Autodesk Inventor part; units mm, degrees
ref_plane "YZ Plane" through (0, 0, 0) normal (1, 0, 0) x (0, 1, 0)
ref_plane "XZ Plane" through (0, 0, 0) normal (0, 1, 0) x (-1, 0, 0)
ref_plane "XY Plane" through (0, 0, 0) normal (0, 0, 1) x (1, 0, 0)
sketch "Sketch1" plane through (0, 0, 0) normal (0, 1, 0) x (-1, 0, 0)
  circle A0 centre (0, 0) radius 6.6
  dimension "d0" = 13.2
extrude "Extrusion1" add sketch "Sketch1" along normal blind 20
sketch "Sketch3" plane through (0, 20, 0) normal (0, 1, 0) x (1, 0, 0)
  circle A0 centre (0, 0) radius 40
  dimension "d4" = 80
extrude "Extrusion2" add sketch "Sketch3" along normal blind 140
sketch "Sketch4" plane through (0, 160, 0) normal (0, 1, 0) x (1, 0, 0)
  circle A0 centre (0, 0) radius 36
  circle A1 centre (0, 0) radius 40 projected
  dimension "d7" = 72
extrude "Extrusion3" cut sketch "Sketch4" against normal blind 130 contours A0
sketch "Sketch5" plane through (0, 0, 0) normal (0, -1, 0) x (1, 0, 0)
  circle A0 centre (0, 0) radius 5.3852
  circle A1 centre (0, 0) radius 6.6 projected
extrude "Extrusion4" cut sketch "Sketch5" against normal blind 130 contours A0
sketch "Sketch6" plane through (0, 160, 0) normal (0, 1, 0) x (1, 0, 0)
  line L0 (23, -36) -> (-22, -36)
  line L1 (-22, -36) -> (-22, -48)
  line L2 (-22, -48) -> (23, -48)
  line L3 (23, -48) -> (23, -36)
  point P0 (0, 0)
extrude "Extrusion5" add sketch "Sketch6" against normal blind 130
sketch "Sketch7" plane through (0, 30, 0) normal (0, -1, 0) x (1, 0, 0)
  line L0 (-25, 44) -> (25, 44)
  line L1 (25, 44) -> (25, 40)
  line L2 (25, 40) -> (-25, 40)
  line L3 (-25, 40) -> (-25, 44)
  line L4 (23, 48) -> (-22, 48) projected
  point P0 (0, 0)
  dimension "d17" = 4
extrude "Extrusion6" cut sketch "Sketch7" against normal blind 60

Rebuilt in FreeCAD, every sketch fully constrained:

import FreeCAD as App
import Part
import Sketcher
Q = App.Units.Quantity


def add_polygon(sketch, points):
    """Adds a closed chain of lines whose ends are joined by coincident constraints."""
    first, n = sketch.GeometryCount, len(points)
    for a, b in zip(points, points[1:] + points[:1]):
        sketch.addGeometry(Part.LineSegment(App.Vector(*a, 0), App.Vector(*b, 0)), False)
    for i in range(n):
        sketch.addConstraint(Sketcher.Constraint("Coincident", first + i, 2, first + (i + 1) % n, 1))

doc = App.newDocument("Part")
body = doc.addObject("PartDesign::Body", "Body")

# Sketch on XZ plane
sketch1 = body.newObject("Sketcher::SketchObject", "Sketch")
sketch1.AttachmentSupport = (doc.getObject("XZ_Plane"), [""])
sketch1.MapMode = "FlatFace"
sketch1.addGeometry(Part.Circle(App.Vector(0, 0, 0), App.Vector(0, 0, 1), 7), False)
sketch1.addConstraint(Sketcher.Constraint("Coincident", 0, 3, -1, 1))
sketch1.addConstraint(Sketcher.Constraint("Diameter", 0, Q("13.2 mm")))
pad1 = body.newObject("PartDesign::Pad", "Pad")
pad1.Profile = sketch1
pad1.Length = 20
pad1.Reversed = True

# Sketch on XZ plane
sketch2 = body.newObject("Sketcher::SketchObject", "Sketch001")
sketch2.AttachmentSupport = (doc.getObject("XZ_Plane"), [""])
sketch2.MapMode = "FlatFace"
sketch2.AttachmentOffset = App.Placement(App.Vector(0, 0, -20), App.Rotation())
sketch2.addGeometry(Part.Circle(App.Vector(0, 0, 0), App.Vector(0, 0, 1), 40), False)
sketch2.addConstraint(Sketcher.Constraint("Coincident", 0, 3, -1, 1))
sketch2.addConstraint(Sketcher.Constraint("Diameter", 0, Q("80 mm")))
pad2 = body.newObject("PartDesign::Pad", "Pad001")
pad2.Profile = sketch2
pad2.Length = 140
pad2.Reversed = True

# Sketch on XZ plane
sketch3 = body.newObject("Sketcher::SketchObject", "Sketch002")
sketch3.AttachmentSupport = (doc.getObject("XZ_Plane"), [""])
sketch3.MapMode = "FlatFace"
sketch3.AttachmentOffset = App.Placement(App.Vector(0, 0, -160), App.Rotation())
sketch3.addGeometry(Part.Circle(App.Vector(0, 0, 0), App.Vector(0, 0, 1), 36), False)
sketch3.addConstraint(Sketcher.Constraint("Coincident", 0, 3, -1, 1))
sketch3.addConstraint(Sketcher.Constraint("Diameter", 0, Q("72 mm")))
pocket1 = body.newObject("PartDesign::Pocket", "Pocket")
pocket1.Profile = sketch3
pocket1.Length = 130
pocket1.Reversed = True

# Sketch on XZ plane
sketch4 = body.newObject("Sketcher::SketchObject", "Sketch003")
sketch4.AttachmentSupport = (doc.getObject("XZ_Plane"), [""])
sketch4.MapMode = "FlatFace"
sketch4.addGeometry(Part.Circle(App.Vector(0, 0, 0), App.Vector(0, 0, 1), 5), False)
sketch4.addConstraint(Sketcher.Constraint("Coincident", 0, 3, -1, 1))
sketch4.addConstraint(Sketcher.Constraint("Diameter", 0, Q("10.7704 mm")))
pocket2 = body.newObject("PartDesign::Pocket", "Pocket001")
pocket2.Profile = sketch4
pocket2.Length = 130

# Sketch on XZ plane
sketch5 = body.newObject("Sketcher::SketchObject", "Sketch004")
sketch5.AttachmentSupport = (doc.getObject("XZ_Plane"), [""])
sketch5.MapMode = "FlatFace"
sketch5.AttachmentOffset = App.Placement(App.Vector(0, 0, -160), App.Rotation())
add_polygon(sketch5, [(23, 48), (23, 36), (-22, 36), (-22, 48)])  # lines 0-3
sketch5.addConstraint(Sketcher.Constraint("Vertical", 0))
sketch5.addConstraint(Sketcher.Constraint("Horizontal", 1))
sketch5.addConstraint(Sketcher.Constraint("Vertical", 2))
sketch5.addConstraint(Sketcher.Constraint("Horizontal", 3))
sketch5.addConstraint(Sketcher.Constraint("DistanceX", 1, 2, 1, 1, Q("45 mm")))
sketch5.addConstraint(Sketcher.Constraint("DistanceY", 0, 2, 0, 1, Q("12 mm")))
sketch5.addConstraint(Sketcher.Constraint("DistanceX", -1, 1, 0, 2, Q("23 mm")))
sketch5.addConstraint(Sketcher.Constraint("DistanceY", -1, 1, 0, 2, Q("36 mm")))
pad3 = body.newObject("PartDesign::Pad", "Pad002")
pad3.Profile = sketch5
pad3.Length = 130

# Sketch on XZ plane
sketch6 = body.newObject("Sketcher::SketchObject", "Sketch005")
sketch6.AttachmentSupport = (doc.getObject("XZ_Plane"), [""])
sketch6.MapMode = "FlatFace"
sketch6.AttachmentOffset = App.Placement(App.Vector(0, 0, -30), App.Rotation())
add_polygon(sketch6, [(25, 44), (-25, 44), (-25, 40), (25, 40)])  # lines 0-3
sketch6.addConstraint(Sketcher.Constraint("Horizontal", 0))
sketch6.addConstraint(Sketcher.Constraint("Vertical", 1))
sketch6.addConstraint(Sketcher.Constraint("Horizontal", 2))
sketch6.addConstraint(Sketcher.Constraint("Vertical", 3))
sketch6.addConstraint(Sketcher.Constraint("DistanceY", 1, 2, 1, 1, Q("4 mm")))
sketch6.addConstraint(Sketcher.Constraint("DistanceX", 0, 2, 0, 1, Q("50 mm")))
sketch6.addConstraint(Sketcher.Constraint("DistanceX", 0, 2, -1, 1, Q("25 mm")))
sketch6.addConstraint(Sketcher.Constraint("DistanceY", -1, 1, 0, 2, Q("44 mm")))
pocket3 = body.newObject("PartDesign::Pocket", "Pocket002")
pocket3.Profile = sketch6
pocket3.Length = 60

doc.recompute()
